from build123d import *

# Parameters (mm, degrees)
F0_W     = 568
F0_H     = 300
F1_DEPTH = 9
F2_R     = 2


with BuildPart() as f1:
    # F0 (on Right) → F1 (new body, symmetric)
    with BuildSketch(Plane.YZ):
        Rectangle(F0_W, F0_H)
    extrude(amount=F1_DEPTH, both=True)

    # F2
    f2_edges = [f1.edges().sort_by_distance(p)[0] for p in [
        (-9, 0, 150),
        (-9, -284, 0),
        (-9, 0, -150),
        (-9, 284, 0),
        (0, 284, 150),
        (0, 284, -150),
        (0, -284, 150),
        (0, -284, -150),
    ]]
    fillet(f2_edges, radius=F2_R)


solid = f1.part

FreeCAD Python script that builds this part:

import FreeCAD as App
import Part
import Sketcher


def edges_at(feature, points):
    """Names of the edges that pass closest to the given points."""
    edges = feature.Shape.Edges
    near = lambda p: min(range(len(edges)), key=lambda i: edges[i].distToShape(Part.Vertex(*p))[0])
    return sorted({f"Edge{near(p) + 1}" for p in points})

doc = App.newDocument("Part")
body = doc.addObject("PartDesign::Body", "Body")

# Sketch on YZ plane
sketch1 = doc.addObject("Sketcher::SketchObject", "Sketch")
body.addObject(sketch1)
sketch1.AttachmentSupport = (doc.YZ_Plane, [""])
sketch1.MapMode = "FlatFace"
sketch1.addGeometry([
    Part.LineSegment(App.Vector(-284, 150, 0), App.Vector(-284, -150, 0)),
    Part.LineSegment(App.Vector(-284, -150, 0), App.Vector(284, -150, 0)),
    Part.LineSegment(App.Vector(284, -150, 0), App.Vector(284, 150, 0)),
    Part.LineSegment(App.Vector(284, 150, 0), App.Vector(-284, 150, 0)),
], False)
sketch1.addConstraint([
    Sketcher.Constraint("Coincident", 0, 2, 1, 1),
    Sketcher.Constraint("Coincident", 1, 2, 2, 1),
    Sketcher.Constraint("Coincident", 2, 2, 3, 1),
    Sketcher.Constraint("Coincident", 3, 2, 0, 1),
    Sketcher.Constraint("Vertical", 0),
    Sketcher.Constraint("Horizontal", 1),
    Sketcher.Constraint("Vertical", 2),
    Sketcher.Constraint("Horizontal", 3),
    Sketcher.Constraint("Symmetric", 0, 2, 2, 2, -1, 1),
    Sketcher.Constraint("DistanceX", 1, 1, 1, 2, 568.0),
    Sketcher.Constraint("DistanceY", 0, 2, 0, 1, 300.0),
])
pad1 = doc.addObject("PartDesign::Pad", "Pad")
body.addObject(pad1)
pad1.Profile = sketch1
pad1.Length = 18
pad1.Midplane = True
doc.recompute()

fillet = doc.addObject("PartDesign::Fillet", "Fillet")
body.addObject(fillet)
fillet.Base = (pad1, edges_at(pad1, [
    (-9, 0, 150),
    (-9, -284, 0),
    (-9, 0, -150),
    (-9, 284, 0),
    (0, 284, 150),
    (0, 284, -150),
    (0, -284, 150),
    (0, -284, -150),
]))
fillet.Radius = 2

doc.recompute()
